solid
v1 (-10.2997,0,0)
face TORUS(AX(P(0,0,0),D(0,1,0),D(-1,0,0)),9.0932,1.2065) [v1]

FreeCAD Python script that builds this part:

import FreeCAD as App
import Part
import Sketcher
from FreeCAD import Vector
Q = App.Units.Quantity

doc = App.newDocument("Part")
body = doc.addObject("PartDesign::Body", "Body")

# Sketch on XY plane
sketch1 = doc.addObject("Sketcher::SketchObject", "Sketch")
body.addObject(sketch1)
sketch1.AttachmentSupport = (doc.XY_Plane, [""])
sketch1.MapMode = "FlatFace"
sketch1.addGeometry(Part.Circle(Vector(9.1, 0, 0), Vector(0, 0, 1), 1.2), False)
sketch1.addConstraint([
    Sketcher.Constraint("PointOnObject", 0, 3, -1),
    Sketcher.Constraint("Diameter", 0, Q("0.095 in")),
    Sketcher.Constraint("DistanceX", -1, 1, 0, 3, Q("0.358 in")),
])
revolution = doc.addObject("PartDesign::Revolution", "Revolution")
body.addObject(revolution)
revolution.Profile = sketch1
revolution.ReferenceAxis = (sketch1, ["V_Axis"])
revolution.Angle = 360

doc.recompute()
